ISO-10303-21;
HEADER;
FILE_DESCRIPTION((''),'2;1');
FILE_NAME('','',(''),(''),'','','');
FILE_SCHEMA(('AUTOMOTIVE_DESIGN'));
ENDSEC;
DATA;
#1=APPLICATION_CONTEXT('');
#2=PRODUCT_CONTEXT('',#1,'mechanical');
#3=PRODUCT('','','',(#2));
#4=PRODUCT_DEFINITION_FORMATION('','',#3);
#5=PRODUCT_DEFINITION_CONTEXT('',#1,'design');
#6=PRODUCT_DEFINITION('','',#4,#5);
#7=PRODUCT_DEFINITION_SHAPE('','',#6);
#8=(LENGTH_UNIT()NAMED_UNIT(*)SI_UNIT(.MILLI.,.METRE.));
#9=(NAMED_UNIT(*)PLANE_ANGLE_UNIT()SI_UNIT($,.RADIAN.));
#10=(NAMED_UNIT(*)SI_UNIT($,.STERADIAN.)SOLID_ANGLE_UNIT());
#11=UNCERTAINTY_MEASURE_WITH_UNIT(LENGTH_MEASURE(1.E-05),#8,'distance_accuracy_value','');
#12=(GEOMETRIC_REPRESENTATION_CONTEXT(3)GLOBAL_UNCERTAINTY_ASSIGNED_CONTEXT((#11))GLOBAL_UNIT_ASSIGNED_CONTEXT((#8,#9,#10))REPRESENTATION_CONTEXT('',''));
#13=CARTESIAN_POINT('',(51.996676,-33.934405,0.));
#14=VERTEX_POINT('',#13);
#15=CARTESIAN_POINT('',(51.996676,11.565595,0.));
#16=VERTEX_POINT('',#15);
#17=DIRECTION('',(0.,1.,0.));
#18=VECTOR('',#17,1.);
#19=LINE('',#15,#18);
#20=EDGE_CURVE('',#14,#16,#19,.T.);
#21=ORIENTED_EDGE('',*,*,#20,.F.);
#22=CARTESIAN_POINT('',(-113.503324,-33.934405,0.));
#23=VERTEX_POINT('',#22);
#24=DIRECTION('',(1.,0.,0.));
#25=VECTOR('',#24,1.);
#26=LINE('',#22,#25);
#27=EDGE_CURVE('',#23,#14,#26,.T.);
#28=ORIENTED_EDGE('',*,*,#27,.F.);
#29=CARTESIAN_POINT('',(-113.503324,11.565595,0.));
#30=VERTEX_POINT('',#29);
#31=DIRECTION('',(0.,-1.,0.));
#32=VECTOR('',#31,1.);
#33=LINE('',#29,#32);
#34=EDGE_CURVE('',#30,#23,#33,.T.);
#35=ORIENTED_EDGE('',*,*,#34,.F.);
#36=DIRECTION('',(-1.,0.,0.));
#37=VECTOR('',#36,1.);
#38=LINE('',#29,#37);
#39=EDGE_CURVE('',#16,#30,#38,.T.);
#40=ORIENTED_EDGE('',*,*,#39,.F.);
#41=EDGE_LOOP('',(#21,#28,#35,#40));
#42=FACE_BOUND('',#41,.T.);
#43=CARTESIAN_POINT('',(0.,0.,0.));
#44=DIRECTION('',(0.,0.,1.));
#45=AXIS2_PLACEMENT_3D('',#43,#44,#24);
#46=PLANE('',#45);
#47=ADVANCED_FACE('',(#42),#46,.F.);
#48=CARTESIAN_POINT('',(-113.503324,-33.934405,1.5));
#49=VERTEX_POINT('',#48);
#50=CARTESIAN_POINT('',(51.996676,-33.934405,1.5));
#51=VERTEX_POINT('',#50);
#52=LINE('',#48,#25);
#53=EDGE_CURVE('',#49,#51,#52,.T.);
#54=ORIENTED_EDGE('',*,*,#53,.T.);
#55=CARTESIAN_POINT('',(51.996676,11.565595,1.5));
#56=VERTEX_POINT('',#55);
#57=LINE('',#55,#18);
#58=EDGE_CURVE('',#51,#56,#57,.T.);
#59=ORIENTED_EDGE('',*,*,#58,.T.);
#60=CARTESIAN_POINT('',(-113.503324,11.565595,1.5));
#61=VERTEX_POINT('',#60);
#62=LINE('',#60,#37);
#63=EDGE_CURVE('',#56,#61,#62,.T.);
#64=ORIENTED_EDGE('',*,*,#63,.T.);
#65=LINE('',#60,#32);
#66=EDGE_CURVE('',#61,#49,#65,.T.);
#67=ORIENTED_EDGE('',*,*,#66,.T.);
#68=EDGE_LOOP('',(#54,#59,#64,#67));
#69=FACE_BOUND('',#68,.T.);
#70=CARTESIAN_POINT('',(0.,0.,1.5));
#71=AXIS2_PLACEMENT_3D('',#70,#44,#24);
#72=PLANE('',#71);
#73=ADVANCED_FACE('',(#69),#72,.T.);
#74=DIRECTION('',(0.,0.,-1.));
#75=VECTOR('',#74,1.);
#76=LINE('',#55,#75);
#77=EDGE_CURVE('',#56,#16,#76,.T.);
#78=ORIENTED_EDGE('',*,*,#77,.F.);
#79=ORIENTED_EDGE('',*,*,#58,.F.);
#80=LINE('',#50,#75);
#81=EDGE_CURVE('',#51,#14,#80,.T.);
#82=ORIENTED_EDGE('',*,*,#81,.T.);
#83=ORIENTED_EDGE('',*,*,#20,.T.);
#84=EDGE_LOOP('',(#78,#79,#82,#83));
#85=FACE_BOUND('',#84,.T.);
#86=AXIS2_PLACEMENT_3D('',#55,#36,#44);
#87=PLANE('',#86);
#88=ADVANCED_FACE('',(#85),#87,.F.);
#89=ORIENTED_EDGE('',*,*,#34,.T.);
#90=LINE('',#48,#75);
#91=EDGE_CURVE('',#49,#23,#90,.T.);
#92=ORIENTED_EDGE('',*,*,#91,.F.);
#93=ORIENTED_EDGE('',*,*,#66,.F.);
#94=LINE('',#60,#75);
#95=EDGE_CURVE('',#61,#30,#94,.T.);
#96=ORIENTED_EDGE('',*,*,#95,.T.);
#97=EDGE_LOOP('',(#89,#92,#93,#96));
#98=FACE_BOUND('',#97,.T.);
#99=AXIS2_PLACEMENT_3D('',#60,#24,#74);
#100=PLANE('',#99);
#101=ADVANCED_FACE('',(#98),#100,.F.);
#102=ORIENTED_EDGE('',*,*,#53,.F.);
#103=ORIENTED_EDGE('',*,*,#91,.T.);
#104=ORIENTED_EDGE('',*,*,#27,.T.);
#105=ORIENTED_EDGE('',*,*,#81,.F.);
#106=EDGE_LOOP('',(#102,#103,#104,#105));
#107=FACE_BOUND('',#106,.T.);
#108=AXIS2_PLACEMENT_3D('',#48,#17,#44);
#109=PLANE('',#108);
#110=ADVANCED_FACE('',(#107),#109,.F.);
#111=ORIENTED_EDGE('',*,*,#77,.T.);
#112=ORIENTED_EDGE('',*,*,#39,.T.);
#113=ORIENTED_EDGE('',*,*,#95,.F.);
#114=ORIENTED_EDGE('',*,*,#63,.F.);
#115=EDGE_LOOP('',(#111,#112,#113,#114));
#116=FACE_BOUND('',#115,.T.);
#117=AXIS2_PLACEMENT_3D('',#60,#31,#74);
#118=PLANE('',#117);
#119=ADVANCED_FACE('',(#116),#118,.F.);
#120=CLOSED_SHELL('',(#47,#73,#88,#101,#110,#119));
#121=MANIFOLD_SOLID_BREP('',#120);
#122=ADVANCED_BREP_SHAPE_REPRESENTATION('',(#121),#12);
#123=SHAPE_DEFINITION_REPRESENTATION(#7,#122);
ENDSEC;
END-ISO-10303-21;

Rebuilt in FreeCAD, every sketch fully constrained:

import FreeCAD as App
import Part
import Sketcher
Q = App.Units.Quantity

doc = App.newDocument("Part")
body = doc.addObject("PartDesign::Body", "Body")

# Sketch on XY plane
sketch1 = doc.addObject("Sketcher::SketchObject", "Sketch")
body.addObject(sketch1)
sketch1.AttachmentSupport = (doc.XY_Plane, [""])
sketch1.MapMode = "FlatFace"
sketch1.addGeometry([
    Part.LineSegment(App.Vector(-114, 12, 0), App.Vector(-114, -34, 0)),
    Part.LineSegment(App.Vector(-114, -34, 0), App.Vector(52, -34, 0)),
    Part.LineSegment(App.Vector(52, -34, 0), App.Vector(52, 12, 0)),
    Part.LineSegment(App.Vector(52, 12, 0), App.Vector(-114, 12, 0)),
], False)
sketch1.addConstraint([
    Sketcher.Constraint("Coincident", 0, 2, 1, 1),
    Sketcher.Constraint("Coincident", 1, 2, 2, 1),
    Sketcher.Constraint("Coincident", 2, 2, 3, 1),
    Sketcher.Constraint("Coincident", 3, 2, 0, 1),
    Sketcher.Constraint("Vertical", 0),
    Sketcher.Constraint("Horizontal", 1),
    Sketcher.Constraint("Vertical", 2),
    Sketcher.Constraint("Horizontal", 3),
    Sketcher.Constraint("DistanceX", 1, 1, 1, 2, Q("165.5 mm")),
    Sketcher.Constraint("DistanceY", 0, 2, 0, 1, Q("45.5 mm")),
    Sketcher.Constraint("DistanceX", 0, 2, -1, 1, Q("113.503324 mm")),
    Sketcher.Constraint("DistanceY", 0, 2, -1, 1, Q("33.934405 mm")),
])
pad1 = doc.addObject("PartDesign::Pad", "Pad")
body.addObject(pad1)
pad1.Profile = sketch1
pad1.Length = 1.5

doc.recompute()
